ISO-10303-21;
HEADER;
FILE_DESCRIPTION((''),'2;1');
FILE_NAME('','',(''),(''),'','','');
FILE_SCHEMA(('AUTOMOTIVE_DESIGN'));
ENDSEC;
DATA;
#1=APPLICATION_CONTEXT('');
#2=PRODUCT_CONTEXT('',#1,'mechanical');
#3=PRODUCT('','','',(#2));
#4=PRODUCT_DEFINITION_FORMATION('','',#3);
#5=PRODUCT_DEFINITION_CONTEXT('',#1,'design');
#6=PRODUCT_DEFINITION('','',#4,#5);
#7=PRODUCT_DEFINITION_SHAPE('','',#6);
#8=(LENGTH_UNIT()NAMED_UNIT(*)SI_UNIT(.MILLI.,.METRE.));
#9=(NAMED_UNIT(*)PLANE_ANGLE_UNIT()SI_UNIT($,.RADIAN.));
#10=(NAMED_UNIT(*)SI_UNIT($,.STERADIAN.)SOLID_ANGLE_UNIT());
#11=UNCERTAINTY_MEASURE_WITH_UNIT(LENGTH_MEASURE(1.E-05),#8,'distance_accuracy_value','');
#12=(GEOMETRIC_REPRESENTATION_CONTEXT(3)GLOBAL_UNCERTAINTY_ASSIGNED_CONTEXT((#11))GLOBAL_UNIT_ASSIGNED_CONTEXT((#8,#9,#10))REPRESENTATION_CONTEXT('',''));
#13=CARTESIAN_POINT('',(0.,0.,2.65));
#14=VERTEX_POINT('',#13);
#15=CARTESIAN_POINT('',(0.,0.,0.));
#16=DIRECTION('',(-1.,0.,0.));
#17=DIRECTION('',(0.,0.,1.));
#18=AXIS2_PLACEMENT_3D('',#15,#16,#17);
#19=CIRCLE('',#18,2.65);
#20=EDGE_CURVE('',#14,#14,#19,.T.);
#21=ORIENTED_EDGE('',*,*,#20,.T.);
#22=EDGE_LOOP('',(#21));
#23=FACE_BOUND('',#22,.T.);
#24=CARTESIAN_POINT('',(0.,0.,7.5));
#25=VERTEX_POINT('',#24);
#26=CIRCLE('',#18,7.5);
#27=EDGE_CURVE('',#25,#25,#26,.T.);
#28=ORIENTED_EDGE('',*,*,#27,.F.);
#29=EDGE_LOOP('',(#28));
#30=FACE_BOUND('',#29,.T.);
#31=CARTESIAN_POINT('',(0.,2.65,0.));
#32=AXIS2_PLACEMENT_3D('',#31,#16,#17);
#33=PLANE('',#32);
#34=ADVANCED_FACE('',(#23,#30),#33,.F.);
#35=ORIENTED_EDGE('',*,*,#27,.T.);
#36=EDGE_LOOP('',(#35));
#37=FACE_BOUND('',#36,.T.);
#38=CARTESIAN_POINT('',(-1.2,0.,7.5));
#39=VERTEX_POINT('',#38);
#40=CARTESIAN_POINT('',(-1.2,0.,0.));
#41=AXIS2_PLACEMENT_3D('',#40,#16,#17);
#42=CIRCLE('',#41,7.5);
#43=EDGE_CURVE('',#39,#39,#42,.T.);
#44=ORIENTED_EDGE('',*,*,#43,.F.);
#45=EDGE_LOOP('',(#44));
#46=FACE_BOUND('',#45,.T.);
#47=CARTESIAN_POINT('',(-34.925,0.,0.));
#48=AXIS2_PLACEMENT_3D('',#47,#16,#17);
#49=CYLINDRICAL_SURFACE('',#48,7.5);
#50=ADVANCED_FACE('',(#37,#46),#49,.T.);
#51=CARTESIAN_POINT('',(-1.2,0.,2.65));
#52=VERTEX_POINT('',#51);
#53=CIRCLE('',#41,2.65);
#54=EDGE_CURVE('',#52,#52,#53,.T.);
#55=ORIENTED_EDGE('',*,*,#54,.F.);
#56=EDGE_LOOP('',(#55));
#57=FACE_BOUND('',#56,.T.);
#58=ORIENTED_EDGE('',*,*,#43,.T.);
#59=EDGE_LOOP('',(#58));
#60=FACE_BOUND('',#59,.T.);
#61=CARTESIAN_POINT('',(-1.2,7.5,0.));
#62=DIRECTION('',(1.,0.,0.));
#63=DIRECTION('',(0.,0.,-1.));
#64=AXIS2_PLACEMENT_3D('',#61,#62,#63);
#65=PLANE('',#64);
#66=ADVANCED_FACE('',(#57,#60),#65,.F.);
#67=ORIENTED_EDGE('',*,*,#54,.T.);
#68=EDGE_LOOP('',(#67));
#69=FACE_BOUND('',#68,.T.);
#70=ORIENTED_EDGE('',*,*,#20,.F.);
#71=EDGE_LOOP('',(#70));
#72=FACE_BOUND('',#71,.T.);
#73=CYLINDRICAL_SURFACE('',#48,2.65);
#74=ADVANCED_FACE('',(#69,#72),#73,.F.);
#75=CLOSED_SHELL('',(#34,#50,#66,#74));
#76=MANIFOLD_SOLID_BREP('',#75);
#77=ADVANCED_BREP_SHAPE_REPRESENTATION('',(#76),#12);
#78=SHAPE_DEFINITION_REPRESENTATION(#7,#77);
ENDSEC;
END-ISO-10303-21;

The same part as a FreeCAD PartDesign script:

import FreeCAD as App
import Part
import Sketcher
from FreeCAD import Vector
Q = App.Units.Quantity

doc = App.newDocument("Part")
body = doc.addObject("PartDesign::Body", "Body")

sketch1 = body.newObject("Sketcher::SketchObject", "Sketch")
sketch1.AttachmentSupport = (doc.getObject("XY_Plane"), [""])
sketch1.MapMode = "FlatFace"
sketch1.addGeometry([
    Part.LineSegment(Vector(-1.2, 7.5, 0), Vector(-1.2, 2.6, 0)),
    Part.LineSegment(Vector(-1.2, 2.6, 0), Vector(0, 2.6, 0)),
    Part.LineSegment(Vector(0, 2.6, 0), Vector(0, 7.5, 0)),
    Part.LineSegment(Vector(0, 7.5, 0), Vector(-1.2, 7.5, 0)),
], False)
sketch1.addConstraint([
    Sketcher.Constraint("Coincident", 0, 2, 1, 1),
    Sketcher.Constraint("Coincident", 1, 2, 2, 1),
    Sketcher.Constraint("Coincident", 2, 2, 3, 1),
    Sketcher.Constraint("Coincident", 3, 2, 0, 1),
    Sketcher.Constraint("Vertical", 0),
    Sketcher.Constraint("Horizontal", 1),
    Sketcher.Constraint("Vertical", 2),
    Sketcher.Constraint("Horizontal", 3),
    Sketcher.Constraint("PointOnObject", 1, 2, -2),
    Sketcher.Constraint("DistanceX", 1, 1, 1, 2, Q("1.2 mm")),
    Sketcher.Constraint("DistanceY", 0, 2, 0, 1, Q("4.85 mm")),
    Sketcher.Constraint("DistanceY", -1, 1, 2, 2, Q("7.5 mm")),
])
revolution = body.newObject("PartDesign::Revolution", "Revolution")
revolution.Profile = sketch1
revolution.ReferenceAxis = (sketch1, ["H_Axis"])
revolution.Angle = 360

doc.recompute()
